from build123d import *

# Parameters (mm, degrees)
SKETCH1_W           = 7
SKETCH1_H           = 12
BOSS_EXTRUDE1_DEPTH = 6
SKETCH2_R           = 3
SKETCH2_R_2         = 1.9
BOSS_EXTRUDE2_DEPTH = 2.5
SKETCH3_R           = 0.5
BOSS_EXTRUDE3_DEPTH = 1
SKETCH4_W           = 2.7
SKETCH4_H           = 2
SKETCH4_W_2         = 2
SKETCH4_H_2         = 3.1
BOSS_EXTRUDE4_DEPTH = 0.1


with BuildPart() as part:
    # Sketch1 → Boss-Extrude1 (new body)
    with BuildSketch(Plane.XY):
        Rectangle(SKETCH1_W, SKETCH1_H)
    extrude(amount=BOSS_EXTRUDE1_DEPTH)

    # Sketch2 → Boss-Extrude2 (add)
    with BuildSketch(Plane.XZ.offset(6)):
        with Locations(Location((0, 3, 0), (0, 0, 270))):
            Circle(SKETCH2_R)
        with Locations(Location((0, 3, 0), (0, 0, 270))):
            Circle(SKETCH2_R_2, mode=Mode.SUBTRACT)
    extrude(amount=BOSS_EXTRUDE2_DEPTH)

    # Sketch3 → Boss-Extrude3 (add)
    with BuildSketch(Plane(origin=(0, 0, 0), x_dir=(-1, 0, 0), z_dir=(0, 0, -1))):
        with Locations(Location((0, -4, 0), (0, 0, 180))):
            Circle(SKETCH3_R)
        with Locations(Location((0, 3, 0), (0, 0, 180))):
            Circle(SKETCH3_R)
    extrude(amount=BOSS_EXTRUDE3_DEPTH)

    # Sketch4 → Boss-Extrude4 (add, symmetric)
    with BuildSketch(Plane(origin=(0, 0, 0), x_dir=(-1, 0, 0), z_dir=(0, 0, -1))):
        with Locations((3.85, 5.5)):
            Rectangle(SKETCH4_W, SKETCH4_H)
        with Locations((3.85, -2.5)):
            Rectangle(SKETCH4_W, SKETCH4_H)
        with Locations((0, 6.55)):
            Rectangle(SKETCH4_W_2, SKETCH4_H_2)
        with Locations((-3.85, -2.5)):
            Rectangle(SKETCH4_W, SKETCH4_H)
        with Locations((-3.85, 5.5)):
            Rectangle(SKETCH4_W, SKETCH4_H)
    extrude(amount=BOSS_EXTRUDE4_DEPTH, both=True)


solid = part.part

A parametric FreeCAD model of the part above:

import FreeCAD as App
import Part
import Sketcher

doc = App.newDocument("Part")
body = doc.addObject("PartDesign::Body", "Body")

# Sketch on XY plane
sketch1 = body.newObject("Sketcher::SketchObject", "Sketch")
sketch1.AttachmentSupport = (doc.getObject("XY_Plane"), [""])
sketch1.MapMode = "FlatFace"
sketch1.addGeometry(Part.LineSegment(App.Vector(-4, 6, 0), App.Vector(-4, -6, 0)), False)
sketch1.addGeometry(Part.LineSegment(App.Vector(-4, -6, 0), App.Vector(4, -6, 0)), False)
sketch1.addGeometry(Part.LineSegment(App.Vector(4, -6, 0), App.Vector(4, 6, 0)), False)
sketch1.addGeometry(Part.LineSegment(App.Vector(4, 6, 0), App.Vector(-4, 6, 0)), False)
sketch1.addConstraint(Sketcher.Constraint("Coincident", 0, 2, 1, 1))
sketch1.addConstraint(Sketcher.Constraint("Coincident", 1, 2, 2, 1))
sketch1.addConstraint(Sketcher.Constraint("Coincident", 2, 2, 3, 1))
sketch1.addConstraint(Sketcher.Constraint("Coincident", 3, 2, 0, 1))
sketch1.addConstraint(Sketcher.Constraint("Vertical", 0))
sketch1.addConstraint(Sketcher.Constraint("Horizontal", 1))
sketch1.addConstraint(Sketcher.Constraint("Vertical", 2))
sketch1.addConstraint(Sketcher.Constraint("Horizontal", 3))
sketch1.addConstraint(Sketcher.Constraint("Symmetric", 0, 2, 2, 2, -1, 1))
sketch1.addConstraint(Sketcher.Constraint("DistanceX", 1, 1, 1, 2, 7.0))
sketch1.addConstraint(Sketcher.Constraint("DistanceY", 0, 2, 0, 1, 12.0))
pad1 = body.newObject("PartDesign::Pad", "Pad")
pad1.Profile = sketch1
pad1.Length = 6

# Sketch on XZ plane
sketch2 = body.newObject("Sketcher::SketchObject", "Sketch001")
sketch2.AttachmentSupport = (doc.getObject("XZ_Plane"), [""])
sketch2.MapMode = "FlatFace"
sketch2.AttachmentOffset = App.Placement(App.Vector(0, 0, 6), App.Rotation())
sketch2.addGeometry(Part.Circle(App.Vector(0, 3, 0), App.Vector(0, 0, 1), 3), False)
sketch2.addGeometry(Part.Circle(App.Vector(0, 3, 0), App.Vector(0, 0, 1), 1.9), False)
sketch2.addConstraint(Sketcher.Constraint("Coincident", 1, 3, 0, 3))
sketch2.addConstraint(Sketcher.Constraint("PointOnObject", 0, 3, -2))
sketch2.addConstraint(Sketcher.Constraint("Diameter", 0, 6.0))
sketch2.addConstraint(Sketcher.Constraint("Diameter", 1, 3.8))
sketch2.addConstraint(Sketcher.Constraint("DistanceY", -1, 1, 0, 3, 3.0))
pad2 = body.newObject("PartDesign::Pad", "Pad001")
pad2.Profile = sketch2
pad2.Length = 2.5

# Sketch on XY plane
sketch3 = body.newObject("Sketcher::SketchObject", "Sketch002")
sketch3.AttachmentSupport = (doc.getObject("XY_Plane"), [""])
sketch3.MapMode = "FlatFace"
sketch3.addGeometry(Part.Circle(App.Vector(0, -4, 0), App.Vector(0, 0, 1), 0.5), False)
sketch3.addGeometry(Part.Circle(App.Vector(0, 3, 0), App.Vector(0, 0, 1), 0.5), False)
sketch3.addConstraint(Sketcher.Constraint("Equal", 0, 1))
sketch3.addConstraint(Sketcher.Constraint("PointOnObject", 0, 3, -2))
sketch3.addConstraint(Sketcher.Constraint("PointOnObject", 1, 3, -2))
sketch3.addConstraint(Sketcher.Constraint("Diameter", 0, 1.0))
sketch3.addConstraint(Sketcher.Constraint("DistanceY", 0, 3, -1, 1, 4.0))
sketch3.addConstraint(Sketcher.Constraint("DistanceY", -1, 1, 1, 3, 3.0))
pad3 = body.newObject("PartDesign::Pad", "Pad002")
pad3.Profile = sketch3
pad3.Length = 1
pad3.Reversed = True

# Sketch on XY plane
sketch4 = body.newObject("Sketcher::SketchObject", "Sketch003")
sketch4.AttachmentSupport = (doc.getObject("XY_Plane"), [""])
sketch4.MapMode = "FlatFace"
sketch4.addGeometry(Part.LineSegment(App.Vector(-2.5, 6.5, 0), App.Vector(-2.5, 4.5, 0)), False)
sketch4.addGeometry(Part.LineSegment(App.Vector(-2.5, 4.5, 0), App.Vector(-5.2, 4.5, 0)), False)
sketch4.addGeometry(Part.LineSegment(App.Vector(-5.2, 4.5, 0), App.Vector(-5.2, 6.5, 0)), False)
sketch4.addGeometry(Part.LineSegment(App.Vector(-5.2, 6.5, 0), App.Vector(-2.5, 6.5, 0)), False)
sketch4.addGeometry(Part.LineSegment(App.Vector(-2.5, -1.5, 0), App.Vector(-2.5, -3.5, 0)), False)
sketch4.addGeometry(Part.LineSegment(App.Vector(-2.5, -3.5, 0), App.Vector(-5.2, -3.5, 0)), False)
sketch4.addGeometry(Part.LineSegment(App.Vector(-5.2, -3.5, 0), App.Vector(-5.2, -1.5, 0)), False)
sketch4.addGeometry(Part.LineSegment(App.Vector(-5.2, -1.5, 0), App.Vector(-2.5, -1.5, 0)), False)
sketch4.addGeometry(Part.LineSegment(App.Vector(1, 8.1, 0), App.Vector(1, 5, 0)), False)
sketch4.addGeometry(Part.LineSegment(App.Vector(1, 5, 0), App.Vector(-1, 5, 0)), False)
sketch4.addGeometry(Part.LineSegment(App.Vector(-1, 5, 0), App.Vector(-1, 8.1, 0)), False)
sketch4.addGeometry(Part.LineSegment(App.Vector(-1, 8.1, 0), App.Vector(1, 8.1, 0)), False)
sketch4.addGeometry(Part.LineSegment(App.Vector(5.2, -1.5, 0), App.Vector(5.2, -3.5, 0)), False)
sketch4.addGeometry(Part.LineSegment(App.Vector(5.2, -3.5, 0), App.Vector(2.5, -3.5, 0)), False)
sketch4.addGeometry(Part.LineSegment(App.Vector(2.5, -3.5, 0), App.Vector(2.5, -1.5, 0)), False)
sketch4.addGeometry(Part.LineSegment(App.Vector(2.5, -1.5, 0), App.Vector(5.2, -1.5, 0)), False)
sketch4.addGeometry(Part.LineSegment(App.Vector(5.2, 6.5, 0), App.Vector(5.2, 4.5, 0)), False)
sketch4.addGeometry(Part.LineSegment(App.Vector(5.2, 4.5, 0), App.Vector(2.5, 4.5, 0)), False)
sketch4.addGeometry(Part.LineSegment(App.Vector(2.5, 4.5, 0), App.Vector(2.5, 6.5, 0)), False)
sketch4.addGeometry(Part.LineSegment(App.Vector(2.5, 6.5, 0), App.Vector(5.2, 6.5, 0)), False)
sketch4.addConstraint(Sketcher.Constraint("Coincident", 0, 2, 1, 1))
sketch4.addConstraint(Sketcher.Constraint("Coincident", 1, 2, 2, 1))
sketch4.addConstraint(Sketcher.Constraint("Coincident", 2, 2, 3, 1))
sketch4.addConstraint(Sketcher.Constraint("Coincident", 3, 2, 0, 1))
sketch4.addConstraint(Sketcher.Constraint("Coincident", 4, 2, 5, 1))
sketch4.addConstraint(Sketcher.Constraint("Coincident", 5, 2, 6, 1))
sketch4.addConstraint(Sketcher.Constraint("Coincident", 6, 2, 7, 1))
sketch4.addConstraint(Sketcher.Constraint("Coincident", 7, 2, 4, 1))
sketch4.addConstraint(Sketcher.Constraint("Coincident", 8, 2, 9, 1))
sketch4.addConstraint(Sketcher.Constraint("Coincident", 9, 2, 10, 1))
sketch4.addConstraint(Sketcher.Constraint("Coincident", 10, 2, 11, 1))
sketch4.addConstraint(Sketcher.Constraint("Coincident", 11, 2, 8, 1))
sketch4.addConstraint(Sketcher.Constraint("Coincident", 12, 2, 13, 1))
sketch4.addConstraint(Sketcher.Constraint("Coincident", 13, 2, 14, 1))
sketch4.addConstraint(Sketcher.Constraint("Coincident", 14, 2, 15, 1))
sketch4.addConstraint(Sketcher.Constraint("Coincident", 15, 2, 12, 1))
sketch4.addConstraint(Sketcher.Constraint("Coincident", 16, 2, 17, 1))
sketch4.addConstraint(Sketcher.Constraint("Coincident", 17, 2, 18, 1))
sketch4.addConstraint(Sketcher.Constraint("Coincident", 18, 2, 19, 1))
sketch4.addConstraint(Sketcher.Constraint("Coincident", 19, 2, 16, 1))
sketch4.addConstraint(Sketcher.Constraint("Vertical", 0))
sketch4.addConstraint(Sketcher.Constraint("Horizontal", 1))
sketch4.addConstraint(Sketcher.Constraint("Vertical", 2))
sketch4.addConstraint(Sketcher.Constraint("Horizontal", 3))
sketch4.addConstraint(Sketcher.Constraint("Vertical", 4))
sketch4.addConstraint(Sketcher.Constraint("Horizontal", 5))
sketch4.addConstraint(Sketcher.Constraint("Vertical", 6))
sketch4.addConstraint(Sketcher.Constraint("Horizontal", 7))
sketch4.addConstraint(Sketcher.Constraint("Vertical", 8))
sketch4.addConstraint(Sketcher.Constraint("Horizontal", 9))
sketch4.addConstraint(Sketcher.Constraint("Vertical", 10))
sketch4.addConstraint(Sketcher.Constraint("Horizontal", 11))
sketch4.addConstraint(Sketcher.Constraint("Vertical", 12))
sketch4.addConstraint(Sketcher.Constraint("Horizontal", 13))
sketch4.addConstraint(Sketcher.Constraint("Vertical", 14))
sketch4.addConstraint(Sketcher.Constraint("Horizontal", 15))
sketch4.addConstraint(Sketcher.Constraint("Vertical", 16))
sketch4.addConstraint(Sketcher.Constraint("Horizontal", 17))
sketch4.addConstraint(Sketcher.Constraint("Vertical", 18))
sketch4.addConstraint(Sketcher.Constraint("Horizontal", 19))
sketch4.addConstraint(Sketcher.Constraint("Symmetric", 5, 2, 12, 2, -2))
sketch4.addConstraint(Sketcher.Constraint("Symmetric", 7, 2, 14, 2, -2))
sketch4.addConstraint(Sketcher.Constraint("Symmetric", 1, 2, 16, 2, -2))
sketch4.addConstraint(Sketcher.Constraint("Symmetric", 3, 2, 18, 2, -2))
sketch4.addConstraint(Sketcher.Constraint("Vertical", 3, 2, 4, 2))
sketch4.addConstraint(Sketcher.Constraint("Vertical", 2, 2, 5, 2))
sketch4.addConstraint(Sketcher.Constraint("Equal", 11, 0))
sketch4.addConstraint(Sketcher.Constraint("Equal", 2, 4))
sketch4.addConstraint(Sketcher.Constraint("DistanceX", 9, 2, 9, 1, 2.0))
sketch4.addConstraint(Sketcher.Constraint("DistanceX", 1, 2, 1, 1, 2.7))
sketch4.addConstraint(Sketcher.Constraint("DistanceY", 8, 2, 8, 1, 3.1))
sketch4.addConstraint(Sketcher.Constraint("DistanceX", -1, 1, 8, 2, 1.0))
sketch4.addConstraint(Sketcher.Constraint("DistanceY", -1, 1, 8, 2, 5.0))
sketch4.addConstraint(Sketcher.Constraint("DistanceY", 4, 2, 0, 2, 8.0))
sketch4.addConstraint(Sketcher.Constraint("DistanceX", 4, 2, 13, 2, 5.0))
sketch4.addConstraint(Sketcher.Constraint("DistanceY", -1, 1, 0, 2, 4.5))
pad4 = body.newObject("PartDesign::Pad", "Pad003")
pad4.Profile = sketch4
pad4.Length = 0.2
pad4.Midplane = True

doc.recompute()
